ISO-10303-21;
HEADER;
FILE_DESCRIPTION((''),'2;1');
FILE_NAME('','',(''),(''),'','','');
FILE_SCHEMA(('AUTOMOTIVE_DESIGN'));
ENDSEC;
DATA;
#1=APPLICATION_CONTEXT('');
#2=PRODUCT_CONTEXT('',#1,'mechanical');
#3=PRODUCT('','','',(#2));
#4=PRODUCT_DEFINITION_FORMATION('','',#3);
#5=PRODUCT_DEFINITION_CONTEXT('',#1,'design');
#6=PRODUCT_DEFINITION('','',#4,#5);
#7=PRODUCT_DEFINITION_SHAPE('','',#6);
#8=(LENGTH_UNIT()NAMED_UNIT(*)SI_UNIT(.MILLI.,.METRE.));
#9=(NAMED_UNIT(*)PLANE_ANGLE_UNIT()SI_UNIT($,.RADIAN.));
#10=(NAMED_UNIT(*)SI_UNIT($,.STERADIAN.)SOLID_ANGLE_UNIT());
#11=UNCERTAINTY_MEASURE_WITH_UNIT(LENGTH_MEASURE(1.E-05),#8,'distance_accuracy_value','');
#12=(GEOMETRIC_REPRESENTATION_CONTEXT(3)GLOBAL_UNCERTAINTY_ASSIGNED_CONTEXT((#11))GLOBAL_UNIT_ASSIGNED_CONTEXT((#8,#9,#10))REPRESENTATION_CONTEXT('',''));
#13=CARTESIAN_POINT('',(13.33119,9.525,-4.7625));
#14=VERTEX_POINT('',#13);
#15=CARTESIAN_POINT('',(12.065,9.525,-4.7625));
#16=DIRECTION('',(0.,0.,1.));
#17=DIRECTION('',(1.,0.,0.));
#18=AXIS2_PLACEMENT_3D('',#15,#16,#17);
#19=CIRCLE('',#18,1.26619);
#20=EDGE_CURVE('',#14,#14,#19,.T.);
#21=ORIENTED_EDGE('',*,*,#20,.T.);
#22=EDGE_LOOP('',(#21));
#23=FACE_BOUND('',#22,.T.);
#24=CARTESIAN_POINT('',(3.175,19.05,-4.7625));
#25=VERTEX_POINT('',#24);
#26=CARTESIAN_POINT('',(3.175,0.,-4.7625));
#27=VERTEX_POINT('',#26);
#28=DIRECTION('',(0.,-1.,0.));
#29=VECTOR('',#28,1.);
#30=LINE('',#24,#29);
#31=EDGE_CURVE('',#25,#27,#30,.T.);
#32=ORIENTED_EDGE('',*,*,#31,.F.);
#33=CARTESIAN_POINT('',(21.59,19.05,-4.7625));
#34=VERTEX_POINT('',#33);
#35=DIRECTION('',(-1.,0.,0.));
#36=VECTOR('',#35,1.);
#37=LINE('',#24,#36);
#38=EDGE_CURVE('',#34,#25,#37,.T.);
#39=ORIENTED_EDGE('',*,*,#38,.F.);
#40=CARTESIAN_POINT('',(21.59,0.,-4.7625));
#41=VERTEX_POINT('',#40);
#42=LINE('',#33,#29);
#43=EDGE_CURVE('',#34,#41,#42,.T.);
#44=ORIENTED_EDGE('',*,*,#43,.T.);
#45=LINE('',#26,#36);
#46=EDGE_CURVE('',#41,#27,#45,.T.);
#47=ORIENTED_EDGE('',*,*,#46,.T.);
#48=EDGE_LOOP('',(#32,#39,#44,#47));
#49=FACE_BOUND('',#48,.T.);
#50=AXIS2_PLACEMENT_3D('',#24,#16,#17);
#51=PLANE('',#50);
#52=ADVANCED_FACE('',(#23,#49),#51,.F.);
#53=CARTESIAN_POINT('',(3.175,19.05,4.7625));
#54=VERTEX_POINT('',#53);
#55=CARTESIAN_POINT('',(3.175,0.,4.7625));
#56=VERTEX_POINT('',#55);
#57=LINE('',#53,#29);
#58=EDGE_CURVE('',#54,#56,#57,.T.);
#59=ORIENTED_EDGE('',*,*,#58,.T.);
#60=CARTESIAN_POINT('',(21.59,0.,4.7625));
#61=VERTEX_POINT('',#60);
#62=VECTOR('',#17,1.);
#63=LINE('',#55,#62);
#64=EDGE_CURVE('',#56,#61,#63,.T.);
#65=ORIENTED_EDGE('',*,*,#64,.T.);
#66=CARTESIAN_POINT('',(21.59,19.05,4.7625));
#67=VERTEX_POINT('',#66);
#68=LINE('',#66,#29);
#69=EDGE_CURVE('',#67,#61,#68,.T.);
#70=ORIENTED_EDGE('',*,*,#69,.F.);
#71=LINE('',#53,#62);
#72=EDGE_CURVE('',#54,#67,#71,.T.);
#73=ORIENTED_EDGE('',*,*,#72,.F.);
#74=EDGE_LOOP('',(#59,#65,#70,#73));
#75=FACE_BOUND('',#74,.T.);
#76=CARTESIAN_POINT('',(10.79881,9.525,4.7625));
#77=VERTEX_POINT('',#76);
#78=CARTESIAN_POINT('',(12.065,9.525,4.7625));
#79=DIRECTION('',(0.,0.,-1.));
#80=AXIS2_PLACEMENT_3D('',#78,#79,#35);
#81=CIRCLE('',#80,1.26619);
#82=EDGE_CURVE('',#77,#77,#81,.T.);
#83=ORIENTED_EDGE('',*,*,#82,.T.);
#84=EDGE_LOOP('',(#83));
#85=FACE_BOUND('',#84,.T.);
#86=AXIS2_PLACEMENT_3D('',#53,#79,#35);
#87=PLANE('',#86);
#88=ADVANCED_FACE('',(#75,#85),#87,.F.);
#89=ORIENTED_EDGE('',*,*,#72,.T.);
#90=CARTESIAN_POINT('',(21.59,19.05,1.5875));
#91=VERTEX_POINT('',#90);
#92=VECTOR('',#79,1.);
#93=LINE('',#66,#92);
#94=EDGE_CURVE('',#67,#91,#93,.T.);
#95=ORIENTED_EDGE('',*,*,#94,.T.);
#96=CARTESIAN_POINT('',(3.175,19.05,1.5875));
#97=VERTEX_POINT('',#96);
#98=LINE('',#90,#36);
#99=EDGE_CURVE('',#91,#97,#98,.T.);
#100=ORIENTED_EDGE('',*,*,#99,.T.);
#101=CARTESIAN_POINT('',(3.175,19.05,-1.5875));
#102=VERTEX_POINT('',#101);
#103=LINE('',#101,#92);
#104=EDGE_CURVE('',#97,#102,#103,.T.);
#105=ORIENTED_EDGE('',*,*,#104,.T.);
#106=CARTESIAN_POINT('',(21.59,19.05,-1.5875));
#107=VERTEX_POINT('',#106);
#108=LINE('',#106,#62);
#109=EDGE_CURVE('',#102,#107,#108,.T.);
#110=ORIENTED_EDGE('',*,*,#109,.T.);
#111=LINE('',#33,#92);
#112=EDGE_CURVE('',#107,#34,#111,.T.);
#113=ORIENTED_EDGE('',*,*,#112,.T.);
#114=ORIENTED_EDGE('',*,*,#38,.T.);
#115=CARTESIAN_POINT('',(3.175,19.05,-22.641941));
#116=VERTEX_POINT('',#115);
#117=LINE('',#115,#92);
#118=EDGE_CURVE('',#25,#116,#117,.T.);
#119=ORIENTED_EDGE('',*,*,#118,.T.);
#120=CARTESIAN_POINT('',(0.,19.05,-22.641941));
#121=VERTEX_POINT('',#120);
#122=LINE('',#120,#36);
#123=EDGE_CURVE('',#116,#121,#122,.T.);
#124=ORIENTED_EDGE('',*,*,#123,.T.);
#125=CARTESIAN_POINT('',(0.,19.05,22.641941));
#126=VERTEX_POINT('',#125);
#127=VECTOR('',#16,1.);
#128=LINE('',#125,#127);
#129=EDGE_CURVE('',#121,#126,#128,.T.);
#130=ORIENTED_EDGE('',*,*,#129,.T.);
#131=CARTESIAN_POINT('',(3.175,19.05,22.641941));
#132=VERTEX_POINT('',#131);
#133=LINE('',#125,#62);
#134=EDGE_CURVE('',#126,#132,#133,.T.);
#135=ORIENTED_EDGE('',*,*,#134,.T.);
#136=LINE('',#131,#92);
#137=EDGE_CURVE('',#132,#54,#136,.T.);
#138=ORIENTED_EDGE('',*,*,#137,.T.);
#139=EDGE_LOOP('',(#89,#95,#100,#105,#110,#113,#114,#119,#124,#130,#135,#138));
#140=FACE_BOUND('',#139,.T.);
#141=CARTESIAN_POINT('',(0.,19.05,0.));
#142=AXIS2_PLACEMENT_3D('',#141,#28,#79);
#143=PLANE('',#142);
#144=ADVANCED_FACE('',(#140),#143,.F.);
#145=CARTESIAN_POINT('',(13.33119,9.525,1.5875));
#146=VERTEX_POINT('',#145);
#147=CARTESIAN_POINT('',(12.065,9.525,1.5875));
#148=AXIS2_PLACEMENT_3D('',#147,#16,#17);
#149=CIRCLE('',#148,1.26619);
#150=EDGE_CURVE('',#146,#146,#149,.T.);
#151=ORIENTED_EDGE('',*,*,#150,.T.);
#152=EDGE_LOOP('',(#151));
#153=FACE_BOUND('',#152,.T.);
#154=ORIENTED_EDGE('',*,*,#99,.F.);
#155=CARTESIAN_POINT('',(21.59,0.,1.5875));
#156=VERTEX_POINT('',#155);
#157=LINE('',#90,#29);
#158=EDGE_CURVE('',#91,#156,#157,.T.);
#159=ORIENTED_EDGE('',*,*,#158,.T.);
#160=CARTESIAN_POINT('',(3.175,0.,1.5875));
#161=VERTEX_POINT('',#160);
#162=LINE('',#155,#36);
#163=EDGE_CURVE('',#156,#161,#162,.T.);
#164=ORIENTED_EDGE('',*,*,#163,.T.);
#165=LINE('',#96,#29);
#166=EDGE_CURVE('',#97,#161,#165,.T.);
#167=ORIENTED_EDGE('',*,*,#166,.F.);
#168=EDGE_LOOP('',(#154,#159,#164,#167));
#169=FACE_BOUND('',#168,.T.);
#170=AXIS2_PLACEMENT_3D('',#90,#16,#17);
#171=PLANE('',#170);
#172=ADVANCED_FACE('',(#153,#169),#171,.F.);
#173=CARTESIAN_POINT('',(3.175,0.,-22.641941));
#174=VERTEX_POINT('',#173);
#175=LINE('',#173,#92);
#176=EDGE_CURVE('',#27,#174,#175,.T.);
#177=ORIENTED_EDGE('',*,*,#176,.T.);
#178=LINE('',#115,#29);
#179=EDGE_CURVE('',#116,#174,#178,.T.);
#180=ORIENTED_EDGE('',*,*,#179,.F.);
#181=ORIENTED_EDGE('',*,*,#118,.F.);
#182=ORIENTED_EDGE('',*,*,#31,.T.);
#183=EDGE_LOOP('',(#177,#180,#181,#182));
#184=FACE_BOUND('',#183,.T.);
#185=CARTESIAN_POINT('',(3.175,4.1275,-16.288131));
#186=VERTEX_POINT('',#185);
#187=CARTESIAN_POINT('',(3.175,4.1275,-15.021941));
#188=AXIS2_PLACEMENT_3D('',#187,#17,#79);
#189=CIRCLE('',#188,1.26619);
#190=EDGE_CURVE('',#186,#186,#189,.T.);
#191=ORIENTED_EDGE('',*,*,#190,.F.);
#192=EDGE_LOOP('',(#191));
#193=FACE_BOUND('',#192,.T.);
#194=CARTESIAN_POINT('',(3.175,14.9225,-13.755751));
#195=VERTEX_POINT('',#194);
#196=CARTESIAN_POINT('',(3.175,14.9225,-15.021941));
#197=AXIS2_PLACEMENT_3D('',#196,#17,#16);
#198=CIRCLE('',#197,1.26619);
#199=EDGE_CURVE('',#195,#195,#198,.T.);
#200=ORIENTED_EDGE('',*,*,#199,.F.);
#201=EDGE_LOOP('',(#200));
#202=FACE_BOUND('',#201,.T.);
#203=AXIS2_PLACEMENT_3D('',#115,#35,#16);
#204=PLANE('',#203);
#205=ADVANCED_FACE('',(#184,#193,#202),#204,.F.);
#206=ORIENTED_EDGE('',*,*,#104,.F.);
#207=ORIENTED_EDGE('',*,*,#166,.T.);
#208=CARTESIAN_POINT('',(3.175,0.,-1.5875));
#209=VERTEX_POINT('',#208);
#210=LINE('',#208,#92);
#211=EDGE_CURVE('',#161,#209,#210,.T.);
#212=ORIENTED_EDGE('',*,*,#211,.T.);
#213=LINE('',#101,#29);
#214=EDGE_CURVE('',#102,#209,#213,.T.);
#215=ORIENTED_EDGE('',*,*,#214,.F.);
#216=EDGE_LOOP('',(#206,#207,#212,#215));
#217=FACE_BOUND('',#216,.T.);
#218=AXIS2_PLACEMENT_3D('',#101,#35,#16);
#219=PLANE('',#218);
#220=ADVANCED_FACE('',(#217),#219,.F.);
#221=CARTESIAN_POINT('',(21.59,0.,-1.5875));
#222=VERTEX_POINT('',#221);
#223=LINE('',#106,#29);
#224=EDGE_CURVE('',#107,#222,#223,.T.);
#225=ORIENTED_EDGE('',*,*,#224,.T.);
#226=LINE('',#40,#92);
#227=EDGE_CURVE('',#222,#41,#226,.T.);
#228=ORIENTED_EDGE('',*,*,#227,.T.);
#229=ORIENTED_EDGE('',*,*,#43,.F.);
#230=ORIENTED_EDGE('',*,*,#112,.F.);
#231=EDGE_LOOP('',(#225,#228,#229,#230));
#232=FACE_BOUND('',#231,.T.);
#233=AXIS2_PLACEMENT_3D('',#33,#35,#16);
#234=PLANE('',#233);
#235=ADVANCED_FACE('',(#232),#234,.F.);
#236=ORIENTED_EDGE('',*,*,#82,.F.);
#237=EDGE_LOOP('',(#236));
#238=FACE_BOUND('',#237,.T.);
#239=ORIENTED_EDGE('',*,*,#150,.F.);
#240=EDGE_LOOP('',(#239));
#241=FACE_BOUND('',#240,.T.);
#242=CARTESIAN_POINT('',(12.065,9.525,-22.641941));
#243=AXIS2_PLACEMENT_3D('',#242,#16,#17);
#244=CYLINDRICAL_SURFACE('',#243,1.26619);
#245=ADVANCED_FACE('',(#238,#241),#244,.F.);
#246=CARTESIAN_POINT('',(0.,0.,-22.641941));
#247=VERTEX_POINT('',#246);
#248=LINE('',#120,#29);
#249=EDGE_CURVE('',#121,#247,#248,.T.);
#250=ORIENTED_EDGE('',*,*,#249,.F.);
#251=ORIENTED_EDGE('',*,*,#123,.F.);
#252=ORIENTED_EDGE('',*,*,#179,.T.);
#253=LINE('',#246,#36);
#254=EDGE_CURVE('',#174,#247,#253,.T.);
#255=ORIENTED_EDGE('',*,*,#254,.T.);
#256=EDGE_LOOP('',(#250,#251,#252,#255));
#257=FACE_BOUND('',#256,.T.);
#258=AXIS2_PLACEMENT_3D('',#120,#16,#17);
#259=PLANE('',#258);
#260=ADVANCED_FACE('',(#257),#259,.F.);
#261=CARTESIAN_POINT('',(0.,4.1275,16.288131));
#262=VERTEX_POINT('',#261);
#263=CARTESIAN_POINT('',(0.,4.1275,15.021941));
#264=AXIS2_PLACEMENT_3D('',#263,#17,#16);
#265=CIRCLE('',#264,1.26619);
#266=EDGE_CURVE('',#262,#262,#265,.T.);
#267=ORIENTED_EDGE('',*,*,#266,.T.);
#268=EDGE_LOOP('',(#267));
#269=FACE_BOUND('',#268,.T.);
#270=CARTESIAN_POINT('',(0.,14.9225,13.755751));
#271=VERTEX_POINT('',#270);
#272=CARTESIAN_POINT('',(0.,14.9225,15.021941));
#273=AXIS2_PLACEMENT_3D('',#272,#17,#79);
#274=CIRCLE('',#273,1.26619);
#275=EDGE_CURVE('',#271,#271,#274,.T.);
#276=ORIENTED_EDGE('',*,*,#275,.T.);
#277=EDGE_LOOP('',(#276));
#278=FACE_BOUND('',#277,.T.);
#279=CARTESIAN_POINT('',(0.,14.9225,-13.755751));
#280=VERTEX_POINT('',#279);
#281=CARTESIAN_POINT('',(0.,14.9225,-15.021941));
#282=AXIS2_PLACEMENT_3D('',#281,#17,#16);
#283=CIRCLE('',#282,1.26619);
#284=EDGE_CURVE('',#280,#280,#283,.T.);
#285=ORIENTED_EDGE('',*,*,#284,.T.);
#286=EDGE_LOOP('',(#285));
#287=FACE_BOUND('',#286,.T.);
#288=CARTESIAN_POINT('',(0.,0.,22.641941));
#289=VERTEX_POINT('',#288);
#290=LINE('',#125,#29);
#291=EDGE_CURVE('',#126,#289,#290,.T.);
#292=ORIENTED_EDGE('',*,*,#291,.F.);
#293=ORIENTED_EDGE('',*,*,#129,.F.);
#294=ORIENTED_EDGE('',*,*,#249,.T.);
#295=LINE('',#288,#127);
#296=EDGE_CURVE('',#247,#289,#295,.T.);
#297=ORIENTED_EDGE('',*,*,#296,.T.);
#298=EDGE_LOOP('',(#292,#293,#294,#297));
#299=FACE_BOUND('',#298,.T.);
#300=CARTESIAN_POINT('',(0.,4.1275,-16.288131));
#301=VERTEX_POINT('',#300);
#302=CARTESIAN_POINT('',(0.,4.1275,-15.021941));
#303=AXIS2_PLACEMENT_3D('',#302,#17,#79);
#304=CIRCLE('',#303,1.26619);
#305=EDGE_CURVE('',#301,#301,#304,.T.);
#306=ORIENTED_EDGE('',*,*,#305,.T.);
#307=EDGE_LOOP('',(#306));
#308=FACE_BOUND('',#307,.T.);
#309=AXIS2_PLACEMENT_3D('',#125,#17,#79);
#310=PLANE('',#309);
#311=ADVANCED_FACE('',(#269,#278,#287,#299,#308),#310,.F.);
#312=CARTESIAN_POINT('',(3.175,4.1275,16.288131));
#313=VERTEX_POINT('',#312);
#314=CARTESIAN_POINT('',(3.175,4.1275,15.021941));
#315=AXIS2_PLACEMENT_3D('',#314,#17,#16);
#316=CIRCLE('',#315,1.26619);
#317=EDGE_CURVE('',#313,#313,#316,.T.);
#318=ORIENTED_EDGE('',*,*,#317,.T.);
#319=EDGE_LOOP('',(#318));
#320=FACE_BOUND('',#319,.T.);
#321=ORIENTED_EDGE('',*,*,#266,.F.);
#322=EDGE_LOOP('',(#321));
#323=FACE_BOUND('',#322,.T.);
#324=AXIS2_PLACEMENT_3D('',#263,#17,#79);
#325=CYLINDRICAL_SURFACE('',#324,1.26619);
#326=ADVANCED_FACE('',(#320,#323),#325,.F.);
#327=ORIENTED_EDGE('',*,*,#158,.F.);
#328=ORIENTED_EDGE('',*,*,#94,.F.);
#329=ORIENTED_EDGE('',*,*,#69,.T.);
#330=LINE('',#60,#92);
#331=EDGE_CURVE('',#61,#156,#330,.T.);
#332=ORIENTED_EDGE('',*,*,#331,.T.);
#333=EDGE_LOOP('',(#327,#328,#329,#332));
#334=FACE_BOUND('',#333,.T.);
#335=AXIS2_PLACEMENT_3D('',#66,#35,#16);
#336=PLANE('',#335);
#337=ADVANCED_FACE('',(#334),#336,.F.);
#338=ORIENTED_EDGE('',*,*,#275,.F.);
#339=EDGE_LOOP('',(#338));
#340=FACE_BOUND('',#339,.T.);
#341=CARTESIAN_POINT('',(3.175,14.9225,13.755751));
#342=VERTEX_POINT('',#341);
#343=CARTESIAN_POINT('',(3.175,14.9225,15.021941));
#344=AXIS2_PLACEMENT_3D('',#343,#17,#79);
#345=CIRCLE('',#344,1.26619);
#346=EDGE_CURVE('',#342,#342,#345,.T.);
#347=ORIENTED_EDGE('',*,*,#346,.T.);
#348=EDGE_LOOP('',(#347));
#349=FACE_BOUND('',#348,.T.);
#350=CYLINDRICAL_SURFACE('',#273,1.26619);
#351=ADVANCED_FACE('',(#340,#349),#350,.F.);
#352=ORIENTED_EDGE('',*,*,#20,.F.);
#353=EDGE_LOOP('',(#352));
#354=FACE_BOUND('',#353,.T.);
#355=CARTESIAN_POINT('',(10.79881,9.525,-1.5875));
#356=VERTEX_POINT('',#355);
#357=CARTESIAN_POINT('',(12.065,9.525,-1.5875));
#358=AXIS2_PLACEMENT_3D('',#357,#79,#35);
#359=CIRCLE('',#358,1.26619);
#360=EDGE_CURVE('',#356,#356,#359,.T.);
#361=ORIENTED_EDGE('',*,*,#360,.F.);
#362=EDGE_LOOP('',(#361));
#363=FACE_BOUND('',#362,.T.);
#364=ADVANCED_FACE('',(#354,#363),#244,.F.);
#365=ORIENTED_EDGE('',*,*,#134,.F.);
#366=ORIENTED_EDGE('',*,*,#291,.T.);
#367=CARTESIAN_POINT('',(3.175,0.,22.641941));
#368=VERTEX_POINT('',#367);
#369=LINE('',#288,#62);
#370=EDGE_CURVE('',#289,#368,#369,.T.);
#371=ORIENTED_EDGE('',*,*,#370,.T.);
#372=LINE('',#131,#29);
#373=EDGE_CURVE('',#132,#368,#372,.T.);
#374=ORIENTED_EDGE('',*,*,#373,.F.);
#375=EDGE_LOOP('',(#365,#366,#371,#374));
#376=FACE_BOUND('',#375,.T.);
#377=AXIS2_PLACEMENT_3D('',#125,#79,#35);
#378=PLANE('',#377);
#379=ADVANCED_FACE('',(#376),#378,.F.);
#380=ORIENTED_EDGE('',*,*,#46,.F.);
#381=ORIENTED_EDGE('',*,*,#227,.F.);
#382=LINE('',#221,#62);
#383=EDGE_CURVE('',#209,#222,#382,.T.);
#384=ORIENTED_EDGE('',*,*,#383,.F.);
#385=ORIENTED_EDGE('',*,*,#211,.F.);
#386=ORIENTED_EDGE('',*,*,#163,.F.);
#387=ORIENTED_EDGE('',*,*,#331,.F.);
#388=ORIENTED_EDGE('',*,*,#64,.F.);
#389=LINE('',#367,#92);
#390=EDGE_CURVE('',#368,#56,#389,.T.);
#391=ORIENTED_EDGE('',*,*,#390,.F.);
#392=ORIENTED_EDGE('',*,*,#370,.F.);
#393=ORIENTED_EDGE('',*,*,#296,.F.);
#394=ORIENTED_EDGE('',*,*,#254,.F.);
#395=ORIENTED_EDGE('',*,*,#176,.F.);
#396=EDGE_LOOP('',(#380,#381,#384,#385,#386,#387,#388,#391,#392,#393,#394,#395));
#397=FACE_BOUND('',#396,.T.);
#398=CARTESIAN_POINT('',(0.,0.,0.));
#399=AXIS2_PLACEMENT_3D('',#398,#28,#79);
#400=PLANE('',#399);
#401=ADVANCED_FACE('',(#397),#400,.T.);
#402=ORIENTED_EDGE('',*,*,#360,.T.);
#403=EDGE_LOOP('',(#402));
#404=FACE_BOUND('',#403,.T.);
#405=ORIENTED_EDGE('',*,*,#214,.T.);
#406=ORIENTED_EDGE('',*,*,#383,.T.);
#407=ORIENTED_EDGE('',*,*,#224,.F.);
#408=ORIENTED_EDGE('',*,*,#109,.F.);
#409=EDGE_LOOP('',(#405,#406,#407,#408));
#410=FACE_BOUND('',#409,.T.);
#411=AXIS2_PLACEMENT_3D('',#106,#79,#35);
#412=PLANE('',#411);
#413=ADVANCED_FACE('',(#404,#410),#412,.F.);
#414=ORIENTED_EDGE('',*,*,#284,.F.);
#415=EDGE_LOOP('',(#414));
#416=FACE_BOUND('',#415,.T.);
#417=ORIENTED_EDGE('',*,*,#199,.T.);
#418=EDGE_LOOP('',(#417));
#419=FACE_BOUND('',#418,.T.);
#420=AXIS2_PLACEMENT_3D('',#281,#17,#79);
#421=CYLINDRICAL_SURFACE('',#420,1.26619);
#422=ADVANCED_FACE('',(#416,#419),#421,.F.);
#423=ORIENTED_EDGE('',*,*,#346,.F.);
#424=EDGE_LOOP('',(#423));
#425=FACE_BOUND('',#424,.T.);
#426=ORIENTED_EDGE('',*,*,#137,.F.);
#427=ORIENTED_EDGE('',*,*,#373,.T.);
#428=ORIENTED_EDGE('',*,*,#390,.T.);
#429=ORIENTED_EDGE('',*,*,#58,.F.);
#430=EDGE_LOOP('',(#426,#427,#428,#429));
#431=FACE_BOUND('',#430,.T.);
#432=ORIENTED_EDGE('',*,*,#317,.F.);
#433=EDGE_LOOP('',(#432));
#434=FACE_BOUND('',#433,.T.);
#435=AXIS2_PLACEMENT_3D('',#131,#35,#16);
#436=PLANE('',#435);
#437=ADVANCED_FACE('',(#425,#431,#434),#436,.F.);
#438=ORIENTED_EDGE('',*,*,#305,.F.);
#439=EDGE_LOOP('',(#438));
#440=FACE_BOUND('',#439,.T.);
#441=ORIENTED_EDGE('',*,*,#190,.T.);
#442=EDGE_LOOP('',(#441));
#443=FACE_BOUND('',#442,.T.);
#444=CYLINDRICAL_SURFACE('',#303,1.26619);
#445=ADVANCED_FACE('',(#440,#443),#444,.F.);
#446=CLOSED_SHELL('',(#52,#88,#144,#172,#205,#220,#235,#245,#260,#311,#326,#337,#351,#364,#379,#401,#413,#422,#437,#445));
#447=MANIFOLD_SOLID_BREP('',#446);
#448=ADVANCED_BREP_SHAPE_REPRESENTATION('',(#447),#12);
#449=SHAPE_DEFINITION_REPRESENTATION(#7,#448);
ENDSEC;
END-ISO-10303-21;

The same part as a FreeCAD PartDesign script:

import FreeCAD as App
import Part
import Sketcher
from FreeCAD import Vector
Q = App.Units.Quantity


def add_polygon(sketch, points):
    """Adds a closed chain of lines whose ends are joined by coincident constraints."""
    first, n = sketch.GeometryCount, len(points)
    for a, b in zip(points, points[1:] + points[:1]):
        sketch.addGeometry(Part.LineSegment(App.Vector(*a, 0), App.Vector(*b, 0)), False)
    for i in range(n):
        sketch.addConstraint(Sketcher.Constraint("Coincident", first + i, 2, first + (i + 1) % n, 1))

doc = App.newDocument("Part")
body = doc.addObject("PartDesign::Body", "Body")

sketch1 = body.newObject("Sketcher::SketchObject", "Sketch")
sketch1.AttachmentSupport = (doc.getObject("XZ_Plane"), [""])
sketch1.MapMode = "FlatFace"
add_polygon(sketch1, [(0, -22.6), (0, 22.6), (3.2, 22.6), (3.2, 4.8), (21.6, 4.8), (21.6, 1.6), (3.2, 1.6), (3.2, -1.6), (21.6, -1.6), (21.6, -4.8), (3.2, -4.8), (3.2, -22.6)])
sketch1.addConstraint([
    Sketcher.Constraint("Vertical", 0),
    Sketcher.Constraint("Horizontal", 1),
    Sketcher.Constraint("Vertical", 2),
    Sketcher.Constraint("Horizontal", 3),
    Sketcher.Constraint("Vertical", 4),
    Sketcher.Constraint("Horizontal", 5),
    Sketcher.Constraint("Vertical", 6),
    Sketcher.Constraint("Horizontal", 7),
    Sketcher.Constraint("Vertical", 8),
    Sketcher.Constraint("Horizontal", 9),
    Sketcher.Constraint("Vertical", 10),
    Sketcher.Constraint("Horizontal", 11),
    Sketcher.Constraint("Symmetric", 0, 2, 11, 2, -1, 1),
    Sketcher.Constraint("Symmetric", 4, 2, 7, 2, -1),
    Sketcher.Constraint("Symmetric", 2, 2, 9, 2, -1),
    Sketcher.Constraint("Vertical", 2, 2, 5, 2),
    Sketcher.Constraint("Equal", 11, 4),
    Sketcher.Constraint("Equal", 4, 6),
    Sketcher.Constraint("DistanceX", 1, 1, 1, 2, Q("0.125 in")),
    Sketcher.Constraint("DistanceX", 3, 1, 3, 2, Q("0.725 in")),
    Sketcher.Constraint("DistanceY", 2, 2, 2, 1, Q("17.879441 mm")),
])
pad1 = body.newObject("PartDesign::Pad", "Pad")
pad1.Profile = sketch1
pad1.Length = Q("0.75 in")
pad1.Reversed = True

sketch2 = body.newObject("Sketcher::SketchObject", "Sketch001")
sketch2.AttachmentSupport = (doc.getObject("XY_Plane"), [""])
sketch2.MapMode = "FlatFace"
sketch2.AttachmentOffset = App.Placement(Vector(0, 0, 0.1875 * 25.4), App.Rotation())
sketch2.addGeometry(Part.Circle(Vector(12.1, 9.5, 0), Vector(0, 0, 1), 1.3), False)
sketch2.addConstraint([
    Sketcher.Constraint("Diameter", 0, Q("0.0997 in")),
    Sketcher.Constraint("DistanceX", -1, 1, 0, 3, Q("0.475 in")),
    Sketcher.Constraint("DistanceY", -1, 1, 0, 3, Q("0.375 in")),
])
pocket1 = body.newObject("PartDesign::Pocket", "Pocket")
pocket1.Profile = sketch2
pocket1.Type = "ThroughAll"
pocket1.Midplane = True

sketch3 = body.newObject("Sketcher::SketchObject", "Sketch002")
sketch3.AttachmentSupport = (doc.getObject("YZ_Plane"), [""])
sketch3.MapMode = "FlatFace"
sketch3.AttachmentOffset = App.Placement(Vector(0, 0, 0.125 * 25.4), App.Rotation())
sketch3.addGeometry([
    Part.Circle(Vector(14.9, 15, 0), Vector(0, 0, 1), 1.3),
    Part.Circle(Vector(4.1, 15, 0), Vector(0, 0, 1), 1.3),
    Part.Circle(Vector(4.1, -15, 0), Vector(0, 0, 1), 1.3),
    Part.Circle(Vector(14.9, -15, 0), Vector(0, 0, 1), 1.3),
], False)
sketch3.addConstraint([
    Sketcher.Constraint("Equal", 0, 1),
    Sketcher.Constraint("Equal", 1, 2),
    Sketcher.Constraint("Equal", 2, 3),
    Sketcher.Constraint("Symmetric", 1, 3, 2, 3, -1),
    Sketcher.Constraint("Symmetric", 0, 3, 3, 3, -1),
    Sketcher.Constraint("Horizontal", 0, 3, 1, 3),
    Sketcher.Constraint("Diameter", 0, Q("0.0997 in")),
    Sketcher.Constraint("DistanceX", 1, 3, 0, 3, Q("0.425 in")),
    Sketcher.Constraint("DistanceX", -1, 1, 0, 3, Q("0.5875 in")),
    Sketcher.Constraint("DistanceY", -1, 1, 0, 3, Q("15.021941 mm")),
])
pocket2 = body.newObject("PartDesign::Pocket", "Pocket001")
pocket2.Profile = sketch3
pocket2.Type = "ThroughAll"

doc.recompute()
